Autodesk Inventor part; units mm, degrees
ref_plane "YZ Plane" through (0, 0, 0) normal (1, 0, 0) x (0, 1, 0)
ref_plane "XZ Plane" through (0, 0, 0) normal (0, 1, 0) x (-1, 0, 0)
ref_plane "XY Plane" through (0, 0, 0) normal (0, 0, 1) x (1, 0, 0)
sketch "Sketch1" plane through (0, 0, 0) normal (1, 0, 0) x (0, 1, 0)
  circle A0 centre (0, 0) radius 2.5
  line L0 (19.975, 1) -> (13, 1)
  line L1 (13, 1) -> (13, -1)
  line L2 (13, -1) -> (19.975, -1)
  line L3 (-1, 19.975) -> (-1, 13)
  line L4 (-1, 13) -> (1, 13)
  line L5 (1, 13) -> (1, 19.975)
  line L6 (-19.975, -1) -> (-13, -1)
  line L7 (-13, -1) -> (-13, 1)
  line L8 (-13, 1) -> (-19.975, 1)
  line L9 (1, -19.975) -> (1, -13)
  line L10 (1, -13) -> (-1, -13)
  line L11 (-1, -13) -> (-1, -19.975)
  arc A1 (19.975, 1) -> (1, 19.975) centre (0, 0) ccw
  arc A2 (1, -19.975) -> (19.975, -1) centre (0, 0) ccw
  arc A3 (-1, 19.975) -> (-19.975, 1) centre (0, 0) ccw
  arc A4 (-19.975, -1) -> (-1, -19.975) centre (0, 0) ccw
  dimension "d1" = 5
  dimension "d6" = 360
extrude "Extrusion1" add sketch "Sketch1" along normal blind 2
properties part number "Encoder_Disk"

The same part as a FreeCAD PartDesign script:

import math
import FreeCAD as App
import Part
import Sketcher
from FreeCAD import Vector
Q = App.Units.Quantity

doc = App.newDocument("Part")
params = doc.addObject("Spreadsheet::Sheet", "Params")
for row, (alias, value) in enumerate([
    ("sketch1_diameter", "5 mm"),
    ("sketch1_radius", "20 mm"),
    ("sketch1_width", "2 mm"),
    ("pad1_length", "2 mm"),
], start=1):
    params.set(f"A{row}", alias)
    params.set(f"B{row}", "=" + value)
    params.setAlias(f"B{row}", alias)

body = doc.addObject("PartDesign::Body", "Body")

# Sketch on YZ plane
sketch1 = body.newObject("Sketcher::SketchObject", "Sketch")
sketch1.AttachmentSupport = (doc.getObject("YZ_Plane"), [""])
sketch1.MapMode = "FlatFace"
sketch1.addGeometry([
    Part.LineSegment(Vector(13, 1, 0), Vector(19.975, 1, 0)),  # 0
    Part.ArcOfCircle(Part.Circle(Vector(0, 0, 0), Vector(0, 0, 1), 20.000016), math.radians(2.865982), math.radians(87.134018)),  # 1
    Part.LineSegment(Vector(1, 19.975, 0), Vector(1, 13, 0)),  # 2
    Part.LineSegment(Vector(1, 13, 0), Vector(-1, 13, 0)),  # 3
    Part.LineSegment(Vector(-1, 13, 0), Vector(-1, 19.975, 0)),  # 4
    Part.ArcOfCircle(Part.Circle(Vector(0, 0, 0), Vector(0, 0, 1), 20.000016), math.radians(92.865982), math.radians(177.134018)),  # 5
    Part.LineSegment(Vector(-19.975, 1, 0), Vector(-13, 1, 0)),  # 6
    Part.LineSegment(Vector(-13, 1, 0), Vector(-13, -1, 0)),  # 7
    Part.LineSegment(Vector(-13, -1, 0), Vector(-19.975, -1, 0)),  # 8
    Part.ArcOfCircle(Part.Circle(Vector(0, 0, 0), Vector(0, 0, 1), 20.000016), math.radians(-177.134018), math.radians(-92.865982)),  # 9
    Part.LineSegment(Vector(-1, -19.975, 0), Vector(-1, -13, 0)),  # 10
    Part.LineSegment(Vector(-1, -13, 0), Vector(1, -13, 0)),  # 11
    Part.LineSegment(Vector(1, -13, 0), Vector(1, -19.975, 0)),  # 12
    Part.ArcOfCircle(Part.Circle(Vector(0, 0, 0), Vector(0, 0, 1), 20.000016), math.radians(-87.134018), math.radians(-2.865982)),  # 13
    Part.LineSegment(Vector(19.975, -1, 0), Vector(13, -1, 0)),  # 14
    Part.LineSegment(Vector(13, -1, 0), Vector(13, 1, 0)),  # 15
    Part.Circle(Vector(0, 0, 0), Vector(0, 0, 1), 2.5),  # 16
], False)
sketch1.addConstraint([
    Sketcher.Constraint("Coincident", 0, 2, 1, 1),
    Sketcher.Constraint("Coincident", 1, 2, 2, 1),
    Sketcher.Constraint("Coincident", 2, 2, 3, 1),
    Sketcher.Constraint("Coincident", 3, 2, 4, 1),
    Sketcher.Constraint("Coincident", 4, 2, 5, 1),
    Sketcher.Constraint("Coincident", 5, 2, 6, 1),
    Sketcher.Constraint("Coincident", 6, 2, 7, 1),
    Sketcher.Constraint("Coincident", 7, 2, 8, 1),
    Sketcher.Constraint("Coincident", 8, 2, 9, 1),
    Sketcher.Constraint("Coincident", 9, 2, 10, 1),
    Sketcher.Constraint("Coincident", 10, 2, 11, 1),
    Sketcher.Constraint("Coincident", 11, 2, 12, 1),
    Sketcher.Constraint("Coincident", 12, 2, 13, 1),
    Sketcher.Constraint("Coincident", 13, 2, 14, 1),
    Sketcher.Constraint("Coincident", 14, 2, 15, 1),
    Sketcher.Constraint("Coincident", 15, 2, 0, 1),
    Sketcher.Constraint("Horizontal", 0),
    Sketcher.Constraint("Vertical", 2),
    Sketcher.Constraint("Horizontal", 3),
    Sketcher.Constraint("Vertical", 4),
    Sketcher.Constraint("Horizontal", 6),
    Sketcher.Constraint("Vertical", 7),
    Sketcher.Constraint("Horizontal", 8),
    Sketcher.Constraint("Vertical", 10),
    Sketcher.Constraint("Horizontal", 11),
    Sketcher.Constraint("Vertical", 12),
    Sketcher.Constraint("Horizontal", 14),
    Sketcher.Constraint("Vertical", 15),
    Sketcher.Constraint("Coincident", 1, 3, -1, 1),
    Sketcher.Constraint("Coincident", 5, 3, -1, 1),
    Sketcher.Constraint("Coincident", 9, 3, -1, 1),
    Sketcher.Constraint("Coincident", 13, 3, -1, 1),
    Sketcher.Constraint("Coincident", 16, 3, -1, 1),
    Sketcher.Constraint("Equal", 1, 5),
    Sketcher.Constraint("Equal", 5, 9),
    Sketcher.Constraint("Equal", 9, 13),
    Sketcher.Constraint("Symmetric", 2, 2, 10, 2, -1, 1),
    Sketcher.Constraint("Symmetric", 6, 2, 14, 2, -1, 1),
    Sketcher.Constraint("Horizontal", 1, 2, 4, 2),
    Sketcher.Constraint("Horizontal", 0, 2, 5, 2),
    Sketcher.Constraint("Horizontal", 9, 2, 12, 2),
    Sketcher.Constraint("Horizontal", 8, 2, 13, 2),
    Sketcher.Constraint("Equal", 14, 2),
    Sketcher.Constraint("Equal", 11, 7),
    Sketcher.Constraint("Diameter", 16, Q("5 mm")),
    Sketcher.Constraint("Radius", 1, Q("20 mm")),
    Sketcher.Constraint("DistanceX", 3, 2, 3, 1, Q("2 mm")),
    Sketcher.Constraint("DistanceY", -1, 1, 2, 2, Q("13 mm")),
])
sketch1.setExpression("Constraints[44]", "Params.sketch1_diameter")
sketch1.setExpression("Constraints[45]", "Params.sketch1_radius")
sketch1.setExpression("Constraints[46]", "Params.sketch1_width")
pad1 = body.newObject("PartDesign::Pad", "Pad")
pad1.Profile = sketch1
pad1.setExpression("Length", "Params.pad1_length")

doc.recompute()
